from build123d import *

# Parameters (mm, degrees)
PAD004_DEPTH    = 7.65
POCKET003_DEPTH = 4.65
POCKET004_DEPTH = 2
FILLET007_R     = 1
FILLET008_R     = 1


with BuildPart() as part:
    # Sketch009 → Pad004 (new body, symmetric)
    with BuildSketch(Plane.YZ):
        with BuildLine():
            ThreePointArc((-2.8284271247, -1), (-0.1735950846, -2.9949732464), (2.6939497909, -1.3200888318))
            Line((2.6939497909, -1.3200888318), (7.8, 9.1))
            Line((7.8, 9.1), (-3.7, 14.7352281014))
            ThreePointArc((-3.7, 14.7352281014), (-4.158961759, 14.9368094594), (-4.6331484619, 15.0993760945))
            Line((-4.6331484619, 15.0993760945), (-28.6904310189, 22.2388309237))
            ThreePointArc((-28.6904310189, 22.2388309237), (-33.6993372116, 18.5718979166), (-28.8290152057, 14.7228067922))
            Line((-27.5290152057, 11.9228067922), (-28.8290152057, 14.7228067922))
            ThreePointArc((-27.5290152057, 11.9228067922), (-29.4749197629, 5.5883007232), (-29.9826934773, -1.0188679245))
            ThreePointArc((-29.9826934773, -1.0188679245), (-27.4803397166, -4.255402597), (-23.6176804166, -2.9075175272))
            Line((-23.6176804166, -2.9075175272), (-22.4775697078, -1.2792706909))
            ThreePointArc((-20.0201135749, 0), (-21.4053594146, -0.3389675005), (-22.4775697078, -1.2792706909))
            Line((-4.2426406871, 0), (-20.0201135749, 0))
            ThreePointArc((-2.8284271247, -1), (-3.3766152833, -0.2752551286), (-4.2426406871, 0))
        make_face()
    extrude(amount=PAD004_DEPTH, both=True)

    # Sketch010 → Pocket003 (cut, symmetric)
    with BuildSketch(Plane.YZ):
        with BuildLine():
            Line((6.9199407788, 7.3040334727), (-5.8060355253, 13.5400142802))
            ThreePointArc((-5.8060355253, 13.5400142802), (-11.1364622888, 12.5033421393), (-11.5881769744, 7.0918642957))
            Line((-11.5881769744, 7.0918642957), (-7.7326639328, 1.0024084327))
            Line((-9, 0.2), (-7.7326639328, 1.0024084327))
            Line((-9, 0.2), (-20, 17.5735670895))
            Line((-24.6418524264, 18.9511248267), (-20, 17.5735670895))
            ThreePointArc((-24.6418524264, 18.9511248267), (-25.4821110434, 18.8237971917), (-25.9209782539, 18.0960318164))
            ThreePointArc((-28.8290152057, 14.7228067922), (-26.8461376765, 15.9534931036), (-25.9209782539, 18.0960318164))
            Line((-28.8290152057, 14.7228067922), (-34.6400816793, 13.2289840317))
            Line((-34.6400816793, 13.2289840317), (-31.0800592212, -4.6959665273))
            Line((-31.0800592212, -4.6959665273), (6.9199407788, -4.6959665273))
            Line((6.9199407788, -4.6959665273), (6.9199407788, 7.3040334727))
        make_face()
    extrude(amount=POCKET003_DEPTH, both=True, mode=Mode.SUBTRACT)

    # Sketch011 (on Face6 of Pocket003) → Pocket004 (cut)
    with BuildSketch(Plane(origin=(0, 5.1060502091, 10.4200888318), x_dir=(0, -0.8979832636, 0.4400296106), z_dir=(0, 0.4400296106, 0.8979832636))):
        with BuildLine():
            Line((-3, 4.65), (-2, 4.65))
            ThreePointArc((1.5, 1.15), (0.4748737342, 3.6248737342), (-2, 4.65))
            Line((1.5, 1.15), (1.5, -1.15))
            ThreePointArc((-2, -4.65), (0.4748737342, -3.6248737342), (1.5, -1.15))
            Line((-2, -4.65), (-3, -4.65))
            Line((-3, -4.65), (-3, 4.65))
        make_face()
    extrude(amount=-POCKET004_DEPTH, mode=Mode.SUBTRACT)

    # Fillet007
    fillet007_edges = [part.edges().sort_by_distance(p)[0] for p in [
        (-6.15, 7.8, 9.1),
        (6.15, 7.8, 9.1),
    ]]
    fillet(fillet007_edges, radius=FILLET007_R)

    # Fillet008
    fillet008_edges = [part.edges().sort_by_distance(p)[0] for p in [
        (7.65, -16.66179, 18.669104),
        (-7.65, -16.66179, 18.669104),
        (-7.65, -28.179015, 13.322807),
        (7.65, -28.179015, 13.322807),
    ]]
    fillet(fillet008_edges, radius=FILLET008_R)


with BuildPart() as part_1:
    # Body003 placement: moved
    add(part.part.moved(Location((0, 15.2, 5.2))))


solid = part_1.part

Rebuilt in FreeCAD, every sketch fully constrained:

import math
import FreeCAD as App
import Part
import Sketcher
Q = App.Units.Quantity


def edges_at(feature, points):
    """Names of the edges that pass closest to the given points."""
    edges = feature.Shape.Edges
    near = lambda p: min(range(len(edges)), key=lambda i: edges[i].distToShape(Part.Vertex(*p))[0])
    return sorted({f"Edge{near(p) + 1}" for p in points})

doc = App.newDocument("Part")
body = doc.addObject("PartDesign::Body", "Body")

sketch1 = doc.addObject("Sketcher::SketchObject", "Sketch")
body.addObject(sketch1)
sketch1.AttachmentSupport = (doc.YZ_Plane, [""])
sketch1.MapMode = "FlatFace"
sketch1.addGeometry(Part.ArcOfCircle(Part.Circle(App.Vector(0, 0, 0), App.Vector(0, 0, 1), 3), math.radians(-161), math.radians(-26)), False)
sketch1.addGeometry(Part.LineSegment(App.Vector(2.7, -1.3, 0), App.Vector(7.8, 9.1, 0)), False)
sketch1.addGeometry(Part.LineSegment(App.Vector(7.8, 9.1, 0), App.Vector(-3.7, 14.7, 0)), False)
sketch1.addGeometry(Part.ArcOfCircle(Part.Circle(App.Vector(-6.3, 9.3, 0), App.Vector(0, 0, 1), 6), math.radians(63.89), math.radians(73.47)), False)
sketch1.addGeometry(Part.LineSegment(App.Vector(-4.6, 15.1, 0), App.Vector(-28.7, 22.2, 0)), False)
sketch1.addGeometry(Part.ArcOfCircle(Part.Circle(App.Vector(-29.8, 18.5, 0), App.Vector(0, 0, 1), 3.9), math.radians(73), math.radians(284)), False)
sketch1.addGeometry(Part.LineSegment(App.Vector(-28.8, 14.7, 0), App.Vector(-27.5, 11.9, 0)), False)
sketch1.addGeometry(Part.ArcOfCircle(Part.Circle(App.Vector(0, 0, 0), App.Vector(0, 0, 1), 30), math.radians(157), math.radians(182)), False)
sketch1.addGeometry(Part.ArcOfCircle(Part.Circle(App.Vector(-26.5, -0.9, 0), App.Vector(0, 0, 1), 3.5), math.radians(-178), math.radians(-35)), False)
sketch1.addGeometry(Part.LineSegment(App.Vector(-23.6, -2.9, 0), App.Vector(-22.5, -1.3, 0)), False)
sketch1.addGeometry(Part.ArcOfCircle(Part.Circle(App.Vector(-20, -3, 0), App.Vector(0, 0, 1), 3), math.radians(90), math.radians(145)), False)
sketch1.addGeometry(Part.LineSegment(App.Vector(-20, 0, 0), App.Vector(-4.2, 0, 0)), False)
sketch1.addGeometry(Part.ArcOfCircle(Part.Circle(App.Vector(-4.2, -1.5, 0), App.Vector(0, 0, 1), 1.5), math.radians(19), math.radians(90)), False)
sketch1.addConstraint(Sketcher.Constraint("Tangent", 0, 2, 1, 1))
sketch1.addConstraint(Sketcher.Constraint("Coincident", 1, 2, 2, 1))
sketch1.addConstraint(Sketcher.Constraint("Tangent", 2, 2, 3, 1))
sketch1.addConstraint(Sketcher.Constraint("Tangent", 3, 2, 4, 1))
sketch1.addConstraint(Sketcher.Constraint("Tangent", 4, 2, 5, 1))
sketch1.addConstraint(Sketcher.Constraint("Coincident", 5, 2, 6, 1))
sketch1.addConstraint(Sketcher.Constraint("Coincident", 6, 2, 7, 1))
sketch1.addConstraint(Sketcher.Constraint("Tangent", 7, 2, 8, 1))
sketch1.addConstraint(Sketcher.Constraint("Tangent", 8, 2, 9, 1))
sketch1.addConstraint(Sketcher.Constraint("Tangent", 9, 2, 10, 2))
sketch1.addConstraint(Sketcher.Constraint("Tangent", 10, 1, 11, 1))
sketch1.addConstraint(Sketcher.Constraint("Tangent", 11, 2, 12, 2))
sketch1.addConstraint(Sketcher.Constraint("Tangent", 12, 1, 0, 1))
sketch1.addConstraint(Sketcher.Constraint("Horizontal", 11))
sketch1.addConstraint(Sketcher.Constraint("Coincident", 0, 3, -1, 1))
sketch1.addConstraint(Sketcher.Constraint("Coincident", 7, 3, -1, 1))
sketch1.addConstraint(Sketcher.Constraint("Equal", 0, 10))
sketch1.addConstraint(Sketcher.Constraint("PointOnObject", 10, 1, -1))
sketch1.addConstraint(Sketcher.Constraint("Perpendicular", 1, 2))
sketch1.addConstraint(Sketcher.Constraint("Radius", 0, 3.0))
sketch1.addConstraint(Sketcher.Constraint("Radius", 3, 6.0))
sketch1.addConstraint(Sketcher.Constraint("Radius", 7, 30.0))
sketch1.addConstraint(Sketcher.Constraint("Radius", 5, 3.9))
sketch1.addConstraint(Sketcher.Constraint("Radius", 8, 3.5))
sketch1.addConstraint(Sketcher.Constraint("Radius", 12, 1.5))
sketch1.addConstraint(Sketcher.Constraint("Angle", 9, Q("55 deg")))
sketch1.addConstraint(Sketcher.Constraint("DistanceX", 5, 3, -1, 1, 29.8))
sketch1.addConstraint(Sketcher.Constraint("DistanceY", -1, 1, 5, 3, 18.5))
sketch1.addConstraint(Sketcher.Constraint("DistanceY", 8, 3, -1, 1, 0.9))
sketch1.addConstraint(Sketcher.Constraint("DistanceX", -1, 1, 1, 2, 7.8))
sketch1.addConstraint(Sketcher.Constraint("DistanceY", -1, 1, 1, 2, 9.1))
sketch1.addConstraint(Sketcher.Constraint("DistanceX", 2, 2, -1, 1, 3.7))
sketch1.addConstraint(Sketcher.Constraint("DistanceX", 5, 2, 6, 2, 1.3))
sketch1.addConstraint(Sketcher.Constraint("DistanceY", 6, 2, 5, 2, 2.8))
pad1 = doc.addObject("PartDesign::Pad", "Pad")
body.addObject(pad1)
pad1.Profile = sketch1
pad1.Length = 15.3
pad1.Midplane = True

sketch2 = doc.addObject("Sketcher::SketchObject", "Sketch001")
body.addObject(sketch2)
sketch2.AttachmentSupport = (doc.YZ_Plane, [""])
sketch2.MapMode = "FlatFace"
sketch2.addGeometry(Part.LineSegment(App.Vector(6.9, 7.3, 0), App.Vector(-5.8, 13.5, 0)), False)
sketch2.addGeometry(Part.ArcOfCircle(Part.Circle(App.Vector(-7.8, 9.5, 0), App.Vector(0, 0, 1), 4.5), math.radians(64), math.radians(212)), False)
sketch2.addGeometry(Part.LineSegment(App.Vector(-11.6, 7.1, 0), App.Vector(-7.7, 1, 0)), False)
sketch2.addGeometry(Part.LineSegment(App.Vector(-7.7, 1, 0), App.Vector(-9, 0.2, 0)), False)
sketch2.addGeometry(Part.LineSegment(App.Vector(-9, 0.2, 0), App.Vector(-20, 17.6, 0)), False)
sketch2.addGeometry(Part.LineSegment(App.Vector(-20, 17.6, 0), App.Vector(-24.6, 19, 0)), False)
sketch2.addGeometry(Part.ArcOfCircle(Part.Circle(App.Vector(-24.9, 18, 0), App.Vector(0, 0, 1), 1), math.radians(73), math.radians(174)), False)
sketch2.addGeometry(Part.ArcOfCircle(Part.Circle(App.Vector(-29.8, 18.5, 0), App.Vector(0, 0, 1), 3.9), math.radians(-76), math.radians(-6)), False)
sketch2.addGeometry(Part.LineSegment(App.Vector(-28.8, 14.7, 0), App.Vector(-34.6, 13.2, 0)), False)
sketch2.addGeometry(Part.LineSegment(App.Vector(-34.6, 13.2, 0), App.Vector(-31.1, -4.7, 0)), False)
sketch2.addGeometry(Part.LineSegment(App.Vector(-31.1, -4.7, 0), App.Vector(6.9, -4.7, 0)), False)
sketch2.addGeometry(Part.LineSegment(App.Vector(6.9, -4.7, 0), App.Vector(6.9, 7.3, 0)), False)
sketch2.addConstraint(Sketcher.Constraint("Tangent", 0, 2, 1, 1))
sketch2.addConstraint(Sketcher.Constraint("Tangent", 1, 2, 2, 1))
sketch2.addConstraint(Sketcher.Constraint("Coincident", 2, 2, 3, 1))
sketch2.addConstraint(Sketcher.Constraint("Coincident", 3, 2, 4, 1))
sketch2.addConstraint(Sketcher.Constraint("Coincident", 4, 2, 5, 1))
sketch2.addConstraint(Sketcher.Constraint("Tangent", 5, 2, 6, 1))
sketch2.addConstraint(Sketcher.Constraint("Tangent", 6, 2, 7, 2))
sketch2.addConstraint(Sketcher.Constraint("Tangent", 7, 1, 8, 1))
sketch2.addConstraint(Sketcher.Constraint("Coincident", 8, 2, 9, 1))
sketch2.addConstraint(Sketcher.Constraint("Coincident", 9, 2, 10, 1))
sketch2.addConstraint(Sketcher.Constraint("Coincident", 10, 2, 11, 1))
sketch2.addConstraint(Sketcher.Constraint("Coincident", 11, 2, 0, 1))
sketch2.addConstraint(Sketcher.Constraint("Horizontal", 10))
sketch2.addConstraint(Sketcher.Constraint("Vertical", 11))
sketch2.addConstraint(Sketcher.Constraint("Perpendicular", 2, 3))
sketch2.addConstraint(Sketcher.Constraint("Perpendicular", 3, 4))
sketch2.addConstraint(Sketcher.Constraint("Radius", 6, 1.0))
sketch2.addConstraint(Sketcher.Constraint("Radius", 1, 4.5))
sketch2.addConstraint(Sketcher.Constraint("Radius", 7, 3.9))
sketch2.addConstraint(Sketcher.Constraint("DistanceX", 10, 1, 10, 2, 38.0))
sketch2.addConstraint(Sketcher.Constraint("DistanceY", 11, 1, 11, 2, 12.0))
sketch2.addConstraint(Sketcher.Constraint("Distance", 8, 6.0))
sketch2.addConstraint(Sketcher.Constraint("DistanceX", 3, 2, -1, 1, 9.0))
sketch2.addConstraint(Sketcher.Constraint("DistanceX", 4, 2, -1, 1, 20.0))
sketch2.addConstraint(Sketcher.Constraint("Distance", 3, 1.5))
sketch2.addConstraint(Sketcher.Constraint("DistanceX", 7, 3, -1, 1, 29.8))
sketch2.addConstraint(Sketcher.Constraint("DistanceY", -1, 1, 7, 3, 18.5))
sketch2.addConstraint(Sketcher.Constraint("DistanceY", -1, 1, 3, 2, 0.2))
sketch2.addConstraint(Sketcher.Constraint("DistanceX", 6, 2, 1, 2, 14.332801))
sketch2.addConstraint(Sketcher.Constraint("Distance", 0, 14.17173))
sketch2.addConstraint(Sketcher.Constraint("Distance", 2, 7.207389))
sketch2.addConstraint(Sketcher.Constraint("DistanceX", 1, 3, -1, 1, 7.786169))
sketch2.addConstraint(Sketcher.Constraint("DistanceX", 8, 2, -1, 1, 34.640082))
sketch2.addConstraint(Sketcher.Constraint("DistanceX", 9, 2, -1, 1, 31.080059))
pocket1 = doc.addObject("PartDesign::Pocket", "Pocket")
body.addObject(pocket1)
pocket1.Profile = sketch2
pocket1.Length = 9.3
pocket1.Midplane = True

sketch3 = doc.addObject("Sketcher::SketchObject", "Sketch002")
body.addObject(sketch3)
sketch3.Placement = App.Placement(App.Vector(0, 5.10605, 10.420089), App.Rotation(App.Vector(0, -0.897983264, 0.440029611), App.Vector(1.000000001, 0, 0), App.Vector(0, 0.440029611, 0.897983264), "ZXY"))
sketch3.addGeometry(Part.LineSegment(App.Vector(-2, 4.7, 0), App.Vector(-3, 4.7, 0)), False)
sketch3.addGeometry(Part.LineSegment(App.Vector(-3, 4.7, 0), App.Vector(-3, -4.7, 0)), False)
sketch3.addGeometry(Part.LineSegment(App.Vector(-3, -4.7, 0), App.Vector(-2, -4.7, 0)), False)
sketch3.addGeometry(Part.ArcOfCircle(Part.Circle(App.Vector(-2, -1.2, 0), App.Vector(0, 0, 1), 3.5), math.radians(-90), math.radians(0)), False)
sketch3.addGeometry(Part.LineSegment(App.Vector(1.5, -1.2, 0), App.Vector(1.5, 1.2, 0)), False)
sketch3.addGeometry(Part.ArcOfCircle(Part.Circle(App.Vector(-2, 1.2, 0), App.Vector(0, 0, 1), 3.5), math.radians(0), math.radians(90)), False)
sketch3.addConstraint(Sketcher.Constraint("Coincident", 0, 2, 1, 1))
sketch3.addConstraint(Sketcher.Constraint("Coincident", 1, 2, 2, 1))
sketch3.addConstraint(Sketcher.Constraint("Tangent", 2, 2, 3, 1))
sketch3.addConstraint(Sketcher.Constraint("Tangent", 3, 2, 4, 1))
sketch3.addConstraint(Sketcher.Constraint("Tangent", 4, 2, 5, 1))
sketch3.addConstraint(Sketcher.Constraint("Tangent", 5, 2, 0, 1))
sketch3.addConstraint(Sketcher.Constraint("Horizontal", 0))
sketch3.addConstraint(Sketcher.Constraint("Vertical", 1))
sketch3.addConstraint(Sketcher.Constraint("Horizontal", 2))
sketch3.addConstraint(Sketcher.Constraint("Vertical", 4))
sketch3.addConstraint(Sketcher.Constraint("Equal", 3, 5))
sketch3.addConstraint(Sketcher.Constraint("Radius", 3, 3.5))
sketch3.addConstraint(Sketcher.Constraint("DistanceX", 0, 2, 0, 1, 1.0))
sketch3.addConstraint(Sketcher.Constraint("DistanceY", 1, 2, 1, 1, 9.3))
sketch3.addConstraint(Sketcher.Constraint("DistanceX", 3, 3, -1, 1, 2.0))
sketch3.addConstraint(Sketcher.Constraint("DistanceY", 3, 3, -1, 1, 1.15))
pocket2 = doc.addObject("PartDesign::Pocket", "Pocket001")
body.addObject(pocket2)
pocket2.Profile = sketch3
pocket2.Length = 2
doc.recompute()

fillet = doc.addObject("PartDesign::Fillet", "Fillet")
body.addObject(fillet)
fillet.Base = (pocket2, edges_at(pocket2, [(-6.15, 7.8, 9.1), (6.15, 7.8, 9.1)]))
fillet.Radius = 1
doc.recompute()

fillet2 = doc.addObject("PartDesign::Fillet", "Fillet001")
body.addObject(fillet2)
fillet2.Base = (fillet, edges_at(fillet, [
    (7.65, -16.662, 18.669),
    (-7.65, -16.662, 18.669),
    (-7.65, -28.179, 13.323),
    (7.65, -28.179, 13.323),
]))
fillet2.Radius = 1
body2 = doc.addObject("PartDesign::Body", "Body001")
doc.recompute()

body.Placement = App.Placement(App.Vector(0, 15.2, 5.2), App.Rotation(App.Vector(0, 0, 1), 0))
boolean = doc.addObject("PartDesign::Boolean", "Boolean")
body2.addObject(boolean)
boolean.Type = "Fuse"
boolean.addObjects([body])

doc.recompute()
